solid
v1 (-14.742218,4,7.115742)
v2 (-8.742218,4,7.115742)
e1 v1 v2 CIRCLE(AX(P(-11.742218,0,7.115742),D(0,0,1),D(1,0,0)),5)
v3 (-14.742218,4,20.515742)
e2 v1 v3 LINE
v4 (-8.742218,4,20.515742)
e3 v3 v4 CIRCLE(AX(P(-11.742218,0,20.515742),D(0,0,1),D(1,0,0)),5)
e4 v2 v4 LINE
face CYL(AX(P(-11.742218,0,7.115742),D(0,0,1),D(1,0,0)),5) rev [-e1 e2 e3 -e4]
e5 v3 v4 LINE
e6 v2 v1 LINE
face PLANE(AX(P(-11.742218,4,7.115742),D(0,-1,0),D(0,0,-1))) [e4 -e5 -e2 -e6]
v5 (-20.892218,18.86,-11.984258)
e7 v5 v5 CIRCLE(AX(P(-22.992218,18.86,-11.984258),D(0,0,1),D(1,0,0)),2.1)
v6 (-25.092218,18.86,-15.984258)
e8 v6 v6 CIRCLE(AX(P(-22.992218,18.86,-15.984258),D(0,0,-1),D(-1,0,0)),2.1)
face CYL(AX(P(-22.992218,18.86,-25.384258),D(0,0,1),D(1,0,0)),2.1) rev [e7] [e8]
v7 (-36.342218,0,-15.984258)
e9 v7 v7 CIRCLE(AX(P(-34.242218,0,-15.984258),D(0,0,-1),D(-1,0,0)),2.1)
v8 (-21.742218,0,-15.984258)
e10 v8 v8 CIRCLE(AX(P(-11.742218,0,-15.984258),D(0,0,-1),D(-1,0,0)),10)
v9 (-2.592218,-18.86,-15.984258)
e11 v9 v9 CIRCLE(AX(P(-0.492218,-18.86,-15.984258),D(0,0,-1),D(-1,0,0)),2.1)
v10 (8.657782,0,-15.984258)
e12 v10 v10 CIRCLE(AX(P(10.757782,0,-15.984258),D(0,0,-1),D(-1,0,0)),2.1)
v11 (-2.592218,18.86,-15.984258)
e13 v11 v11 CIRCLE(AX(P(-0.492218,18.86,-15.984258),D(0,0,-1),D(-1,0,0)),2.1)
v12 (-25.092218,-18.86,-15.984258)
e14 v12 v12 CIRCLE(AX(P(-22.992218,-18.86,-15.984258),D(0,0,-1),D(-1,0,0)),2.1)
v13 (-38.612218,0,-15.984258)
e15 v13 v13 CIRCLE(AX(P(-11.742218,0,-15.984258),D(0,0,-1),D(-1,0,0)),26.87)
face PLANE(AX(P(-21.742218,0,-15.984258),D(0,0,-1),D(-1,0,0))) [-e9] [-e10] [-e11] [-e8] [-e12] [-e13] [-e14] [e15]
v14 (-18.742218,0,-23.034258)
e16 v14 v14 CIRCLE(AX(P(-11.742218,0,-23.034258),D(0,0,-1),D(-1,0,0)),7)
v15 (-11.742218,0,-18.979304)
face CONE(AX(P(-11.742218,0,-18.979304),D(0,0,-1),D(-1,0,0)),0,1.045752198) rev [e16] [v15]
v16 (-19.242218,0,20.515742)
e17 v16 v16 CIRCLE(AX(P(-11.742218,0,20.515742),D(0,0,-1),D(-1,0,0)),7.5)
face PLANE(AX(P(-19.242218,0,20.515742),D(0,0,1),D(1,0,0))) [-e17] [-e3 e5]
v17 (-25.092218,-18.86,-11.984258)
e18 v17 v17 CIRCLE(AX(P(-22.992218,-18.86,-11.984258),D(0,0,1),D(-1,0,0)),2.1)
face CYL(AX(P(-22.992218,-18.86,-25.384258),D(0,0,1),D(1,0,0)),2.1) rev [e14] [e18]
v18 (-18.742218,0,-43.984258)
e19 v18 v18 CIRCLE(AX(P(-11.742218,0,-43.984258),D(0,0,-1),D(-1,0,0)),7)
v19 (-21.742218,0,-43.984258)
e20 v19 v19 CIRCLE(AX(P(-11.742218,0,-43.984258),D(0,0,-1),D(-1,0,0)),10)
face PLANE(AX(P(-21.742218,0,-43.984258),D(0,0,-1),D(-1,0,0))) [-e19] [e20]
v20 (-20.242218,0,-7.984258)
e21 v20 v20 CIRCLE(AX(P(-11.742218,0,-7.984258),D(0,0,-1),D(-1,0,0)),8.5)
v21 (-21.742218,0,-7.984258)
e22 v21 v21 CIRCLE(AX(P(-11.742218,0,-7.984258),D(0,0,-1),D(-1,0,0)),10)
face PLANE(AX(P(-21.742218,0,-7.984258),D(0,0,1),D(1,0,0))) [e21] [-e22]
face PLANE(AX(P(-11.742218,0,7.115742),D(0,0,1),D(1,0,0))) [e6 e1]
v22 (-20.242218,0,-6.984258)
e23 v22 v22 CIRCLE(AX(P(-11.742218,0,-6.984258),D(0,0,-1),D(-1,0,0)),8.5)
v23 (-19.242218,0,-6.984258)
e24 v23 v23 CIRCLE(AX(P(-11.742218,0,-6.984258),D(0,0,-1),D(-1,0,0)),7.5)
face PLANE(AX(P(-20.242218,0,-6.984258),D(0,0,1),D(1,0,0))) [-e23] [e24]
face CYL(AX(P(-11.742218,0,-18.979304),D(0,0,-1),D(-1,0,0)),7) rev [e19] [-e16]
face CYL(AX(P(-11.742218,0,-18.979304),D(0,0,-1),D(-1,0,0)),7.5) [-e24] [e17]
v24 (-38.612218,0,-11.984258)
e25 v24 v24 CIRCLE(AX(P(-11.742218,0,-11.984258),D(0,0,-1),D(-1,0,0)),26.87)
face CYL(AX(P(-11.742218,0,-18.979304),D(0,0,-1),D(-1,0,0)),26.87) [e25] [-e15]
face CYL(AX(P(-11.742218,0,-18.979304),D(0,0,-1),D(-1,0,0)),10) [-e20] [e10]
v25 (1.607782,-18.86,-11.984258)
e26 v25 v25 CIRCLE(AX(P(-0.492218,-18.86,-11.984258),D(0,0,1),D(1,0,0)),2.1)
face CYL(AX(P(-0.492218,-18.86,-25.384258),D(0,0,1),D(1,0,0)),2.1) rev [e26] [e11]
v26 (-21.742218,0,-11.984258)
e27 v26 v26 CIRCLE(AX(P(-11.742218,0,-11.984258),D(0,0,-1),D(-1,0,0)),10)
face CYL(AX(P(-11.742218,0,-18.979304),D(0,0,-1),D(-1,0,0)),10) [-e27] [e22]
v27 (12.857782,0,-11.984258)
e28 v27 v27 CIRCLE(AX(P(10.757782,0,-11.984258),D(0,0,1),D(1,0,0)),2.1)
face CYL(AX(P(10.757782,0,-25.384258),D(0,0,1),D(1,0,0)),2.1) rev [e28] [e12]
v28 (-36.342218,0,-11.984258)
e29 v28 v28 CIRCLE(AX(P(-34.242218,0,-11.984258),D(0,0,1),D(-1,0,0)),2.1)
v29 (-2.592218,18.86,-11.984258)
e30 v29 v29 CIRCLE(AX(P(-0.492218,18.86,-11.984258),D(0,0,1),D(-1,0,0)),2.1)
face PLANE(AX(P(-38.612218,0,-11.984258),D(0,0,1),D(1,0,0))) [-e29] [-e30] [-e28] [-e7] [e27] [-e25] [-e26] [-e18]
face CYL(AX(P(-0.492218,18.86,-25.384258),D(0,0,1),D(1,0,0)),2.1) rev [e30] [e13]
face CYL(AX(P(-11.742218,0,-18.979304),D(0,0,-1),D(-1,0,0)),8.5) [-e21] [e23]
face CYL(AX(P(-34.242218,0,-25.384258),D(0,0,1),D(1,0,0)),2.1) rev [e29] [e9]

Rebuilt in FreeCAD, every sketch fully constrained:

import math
import FreeCAD as App
import Part
import Sketcher

V = App.Vector
Q = App.Units.Quantity

doc = App.newDocument("Part")
body = doc.addObject("PartDesign::Body", "Body")

sketch1 = doc.addObject("Sketcher::SketchObject", "Sketch")
body.addObject(sketch1)
sketch1.AttachmentSupport = (doc.XZ_Plane, [""])
sketch1.MapMode = "FlatFace"
sketch1.addGeometry(Part.LineSegment(V(-18.742218, -43.984258, 0), V(-21.742218, -43.984258, 0)), False)
sketch1.addGeometry(Part.LineSegment(V(-21.742218, -43.984258, 0), V(-21.742218, -15.984258, 0)), False)
sketch1.addGeometry(Part.LineSegment(V(-21.742218, -15.984258, 0), V(-38.612218, -15.984258, 0)), False)
sketch1.addGeometry(Part.LineSegment(V(-38.612218, -15.984258, 0), V(-38.612218, -11.984258, 0)), False)
sketch1.addGeometry(Part.LineSegment(V(-38.612218, -11.984258, 0), V(-21.742218, -11.984258, 0)), False)
sketch1.addGeometry(Part.LineSegment(V(-21.742218, -11.984258, 0), V(-21.742218, -7.984258, 0)), False)
sketch1.addGeometry(Part.LineSegment(V(-21.742218, -7.984258, 0), V(-20.242218, -7.984258, 0)), False)
sketch1.addGeometry(Part.LineSegment(V(-20.242218, -7.984258, 0), V(-20.242218, -6.984258, 0)), False)
sketch1.addGeometry(Part.LineSegment(V(-20.242218, -6.984258, 0), V(-19.242218, -6.984258, 0)), False)
sketch1.addGeometry(Part.LineSegment(V(-19.242218, -6.984258, 0), V(-19.242218, 20.515742, 0)), False)
sketch1.addGeometry(Part.LineSegment(V(-19.242218, 20.515742, 0), V(-11.742218, 20.515742, 0)), False)
sketch1.addGeometry(Part.LineSegment(V(-11.742218, 20.515742, 0), V(-11.742218, -18.979304, 0)), False)
sketch1.addGeometry(Part.LineSegment(V(-11.742218, -18.979304, 0), V(-18.742218, -23.034258, 0)), False)
sketch1.addGeometry(Part.LineSegment(V(-18.742218, -23.034258, 0), V(-18.742218, -43.984258, 0)), False)
sketch1.addGeometry(Part.LineSegment(V(-11.742218, -43.984258, 0), V(-11.742218, 20.515742, 0)), True)
sketch1.addConstraint(Sketcher.Constraint("Coincident", 0, 2, 1, 1))
sketch1.addConstraint(Sketcher.Constraint("Coincident", 1, 2, 2, 1))
sketch1.addConstraint(Sketcher.Constraint("Coincident", 2, 2, 3, 1))
sketch1.addConstraint(Sketcher.Constraint("Coincident", 3, 2, 4, 1))
sketch1.addConstraint(Sketcher.Constraint("Coincident", 4, 2, 5, 1))
sketch1.addConstraint(Sketcher.Constraint("Coincident", 5, 2, 6, 1))
sketch1.addConstraint(Sketcher.Constraint("Coincident", 6, 2, 7, 1))
sketch1.addConstraint(Sketcher.Constraint("Coincident", 7, 2, 8, 1))
sketch1.addConstraint(Sketcher.Constraint("Coincident", 8, 2, 9, 1))
sketch1.addConstraint(Sketcher.Constraint("Coincident", 9, 2, 10, 1))
sketch1.addConstraint(Sketcher.Constraint("Coincident", 10, 2, 11, 1))
sketch1.addConstraint(Sketcher.Constraint("Coincident", 11, 2, 12, 1))
sketch1.addConstraint(Sketcher.Constraint("Coincident", 12, 2, 13, 1))
sketch1.addConstraint(Sketcher.Constraint("Coincident", 13, 2, 0, 1))
sketch1.addConstraint(Sketcher.Constraint("Horizontal", 0))
sketch1.addConstraint(Sketcher.Constraint("Vertical", 1))
sketch1.addConstraint(Sketcher.Constraint("Horizontal", 2))
sketch1.addConstraint(Sketcher.Constraint("Vertical", 3))
sketch1.addConstraint(Sketcher.Constraint("Horizontal", 4))
sketch1.addConstraint(Sketcher.Constraint("Vertical", 5))
sketch1.addConstraint(Sketcher.Constraint("Horizontal", 6))
sketch1.addConstraint(Sketcher.Constraint("Vertical", 7))
sketch1.addConstraint(Sketcher.Constraint("Horizontal", 8))
sketch1.addConstraint(Sketcher.Constraint("Vertical", 9))
sketch1.addConstraint(Sketcher.Constraint("Horizontal", 10))
sketch1.addConstraint(Sketcher.Constraint("Vertical", 11))
sketch1.addConstraint(Sketcher.Constraint("Vertical", 13))
sketch1.addConstraint(Sketcher.Constraint("Vertical", 14))
sketch1.addConstraint(Sketcher.Constraint("Coincident", 14, 2, 10, 2))
sketch1.addConstraint(Sketcher.Constraint("Horizontal", 13, 2, 14, 1))
sketch1.addConstraint(Sketcher.Constraint("Vertical", 1, 2, 4, 2))
sketch1.addConstraint(Sketcher.Constraint("Equal", 3, 5))
sketch1.addConstraint(Sketcher.Constraint("Equal", 8, 7))
sketch1.addConstraint(Sketcher.Constraint("DistanceX", 0, 2, 0, 1, Q("3 mm")))
sketch1.addConstraint(Sketcher.Constraint("DistanceX", 8, 1, 8, 2, Q("1 mm")))
sketch1.addConstraint(Sketcher.Constraint("DistanceY", 1, 1, 1, 2, Q("28 mm")))
sketch1.addConstraint(Sketcher.Constraint("DistanceY", 3, 1, 3, 2, Q("4 mm")))
sketch1.addConstraint(Sketcher.Constraint("DistanceX", 6, 1, 6, 2, Q("1.5 mm")))
sketch1.addConstraint(Sketcher.Constraint("DistanceX", 10, 1, 10, 2, Q("7.5 mm")))
sketch1.addConstraint(Sketcher.Constraint("DistanceY", 9, 1, 9, 2, Q("27.5 mm")))
sketch1.addConstraint(Sketcher.Constraint("DistanceX", 2, 2, 2, 1, Q("16.87 mm")))
sketch1.addConstraint(Sketcher.Constraint("DistanceY", 13, 2, 13, 1, Q("20.95 mm")))
sketch1.addConstraint(Sketcher.Constraint("DistanceY", 11, 2, 11, 1, Q("39.495047 mm")))
sketch1.addConstraint(Sketcher.Constraint("DistanceX", 0, 2, -1, 1, Q("21.742218 mm")))
sketch1.addConstraint(Sketcher.Constraint("DistanceY", 0, 2, -1, 1, Q("43.984258 mm")))
revolution = doc.addObject("PartDesign::Revolution", "Revolution")
body.addObject(revolution)
revolution.Profile = sketch1
revolution.ReferenceAxis = (sketch1, ["Axis0"])
revolution.Angle = 360

sketch2 = doc.addObject("Sketcher::SketchObject", "Sketch001")
body.addObject(sketch2)
sketch2.AttachmentSupport = (doc.XY_Plane, [""])
sketch2.MapMode = "FlatFace"
sketch2.AttachmentOffset = App.Placement(V(0, 0, 20.515742), App.Rotation())
sketch2.addGeometry(Part.ArcOfCircle(Part.Circle(V(-11.742218, 0, 0), V(0, 0, 1), 5), math.radians(126.869898), math.radians(413.130102)), False)
sketch2.addGeometry(Part.LineSegment(V(-8.742218, 4, 0), V(-14.742218, 4, 0)), False)
sketch2.addConstraint(Sketcher.Constraint("Coincident", 0, 1, 1, 2))
sketch2.addConstraint(Sketcher.Constraint("Coincident", 1, 1, 0, 2))
sketch2.addConstraint(Sketcher.Constraint("Horizontal", 1))
sketch2.addConstraint(Sketcher.Constraint("PointOnObject", 0, 3, -1))
sketch2.addConstraint(Sketcher.Constraint("Radius", 0, Q("5 mm")))
sketch2.addConstraint(Sketcher.Constraint("DistanceX", 1, 2, 1, 1, Q("6 mm")))
sketch2.addConstraint(Sketcher.Constraint("DistanceX", 0, 3, -1, 1, Q("11.742218 mm")))
pocket1 = doc.addObject("PartDesign::Pocket", "Pocket")
body.addObject(pocket1)
pocket1.Profile = sketch2
pocket1.Length = 13.4

sketch3 = doc.addObject("Sketcher::SketchObject", "Sketch002")
body.addObject(sketch3)
sketch3.AttachmentSupport = (doc.XY_Plane, [""])
sketch3.MapMode = "FlatFace"
sketch3.AttachmentOffset = App.Placement(V(0, 0, -11.984258), App.Rotation())
sketch3.addGeometry(Part.Circle(V(-0.492218, -18.86, 0), V(0, 0, 1), 2.1), False)
sketch3.addGeometry(Part.Circle(V(10.757782, 0, 0), V(0, 0, 1), 2.1), False)
sketch3.addGeometry(Part.Circle(V(-22.992218, -18.86, 0), V(0, 0, 1), 2.1), False)
sketch3.addGeometry(Part.Circle(V(-34.242218, 0, 0), V(0, 0, 1), 2.1), False)
sketch3.addGeometry(Part.Circle(V(-22.992218, 18.86, 0), V(0, 0, 1), 2.1), False)
sketch3.addGeometry(Part.Circle(V(-0.492218, 18.86, 0), V(0, 0, 1), 2.1), False)
sketch3.addConstraint(Sketcher.Constraint("Equal", 0, 1))
sketch3.addConstraint(Sketcher.Constraint("Equal", 1, 2))
sketch3.addConstraint(Sketcher.Constraint("Equal", 2, 3))
sketch3.addConstraint(Sketcher.Constraint("Equal", 3, 4))
sketch3.addConstraint(Sketcher.Constraint("Equal", 4, 5))
sketch3.addConstraint(Sketcher.Constraint("Symmetric", 2, 3, 4, 3, -1))
sketch3.addConstraint(Sketcher.Constraint("Symmetric", 0, 3, 5, 3, -1))
sketch3.addConstraint(Sketcher.Constraint("PointOnObject", 1, 3, -1))
sketch3.addConstraint(Sketcher.Constraint("PointOnObject", 3, 3, -1))
sketch3.addConstraint(Sketcher.Constraint("Horizontal", 0, 3, 2, 3))
sketch3.addConstraint(Sketcher.Constraint("Diameter", 0, Q("4.2 mm")))
sketch3.addConstraint(Sketcher.Constraint("DistanceX", 3, 3, 1, 3, Q("45 mm")))
sketch3.addConstraint(Sketcher.Constraint("DistanceX", 2, 3, 0, 3, Q("22.5 mm")))
sketch3.addConstraint(Sketcher.Constraint("DistanceY", 0, 3, -1, 1, Q("18.86 mm")))
sketch3.addConstraint(Sketcher.Constraint("DistanceX", 0, 3, 1, 3, Q("11.25 mm")))
sketch3.addConstraint(Sketcher.Constraint("DistanceX", 0, 3, -1, 1, Q("0.492218 mm")))
pocket2 = doc.addObject("PartDesign::Pocket", "Pocket001")
body.addObject(pocket2)
pocket2.Profile = sketch3
pocket2.Length = 13.4

doc.recompute()
